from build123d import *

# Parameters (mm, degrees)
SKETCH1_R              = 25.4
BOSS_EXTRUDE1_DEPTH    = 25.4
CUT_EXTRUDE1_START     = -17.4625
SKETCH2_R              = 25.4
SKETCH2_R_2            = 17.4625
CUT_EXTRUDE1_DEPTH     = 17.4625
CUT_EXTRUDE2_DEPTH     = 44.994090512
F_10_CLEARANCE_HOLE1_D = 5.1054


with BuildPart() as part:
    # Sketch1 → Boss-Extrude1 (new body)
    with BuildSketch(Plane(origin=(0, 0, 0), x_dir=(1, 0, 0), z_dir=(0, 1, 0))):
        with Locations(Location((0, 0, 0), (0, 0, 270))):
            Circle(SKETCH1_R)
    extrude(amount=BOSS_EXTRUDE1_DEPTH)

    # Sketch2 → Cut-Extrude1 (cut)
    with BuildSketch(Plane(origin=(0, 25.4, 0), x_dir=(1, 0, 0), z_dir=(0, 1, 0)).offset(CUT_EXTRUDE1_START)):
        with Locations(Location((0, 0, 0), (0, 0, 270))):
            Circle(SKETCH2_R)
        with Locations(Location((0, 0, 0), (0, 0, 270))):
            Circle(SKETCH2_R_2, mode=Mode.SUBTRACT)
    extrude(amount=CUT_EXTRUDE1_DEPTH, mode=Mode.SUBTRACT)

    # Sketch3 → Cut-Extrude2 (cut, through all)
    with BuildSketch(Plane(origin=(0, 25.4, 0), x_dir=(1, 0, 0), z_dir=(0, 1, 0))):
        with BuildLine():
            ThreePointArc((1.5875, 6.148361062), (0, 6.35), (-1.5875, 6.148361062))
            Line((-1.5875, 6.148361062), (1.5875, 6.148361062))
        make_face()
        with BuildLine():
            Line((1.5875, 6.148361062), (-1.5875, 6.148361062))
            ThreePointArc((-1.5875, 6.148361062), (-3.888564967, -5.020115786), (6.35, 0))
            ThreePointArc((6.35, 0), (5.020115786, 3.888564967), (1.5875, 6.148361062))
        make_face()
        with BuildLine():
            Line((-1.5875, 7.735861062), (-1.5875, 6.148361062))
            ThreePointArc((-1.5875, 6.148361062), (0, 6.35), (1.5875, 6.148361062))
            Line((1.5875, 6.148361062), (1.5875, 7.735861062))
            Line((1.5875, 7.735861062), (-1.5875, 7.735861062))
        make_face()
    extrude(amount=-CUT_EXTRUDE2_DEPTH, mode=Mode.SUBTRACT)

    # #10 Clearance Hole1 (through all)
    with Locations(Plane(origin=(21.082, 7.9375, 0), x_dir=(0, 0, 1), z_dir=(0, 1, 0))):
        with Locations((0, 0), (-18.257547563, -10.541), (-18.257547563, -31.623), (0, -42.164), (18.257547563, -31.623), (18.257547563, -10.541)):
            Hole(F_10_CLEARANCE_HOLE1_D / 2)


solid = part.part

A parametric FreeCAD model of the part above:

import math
import FreeCAD as App
import Part
import Sketcher

V = App.Vector
Q = App.Units.Quantity

doc = App.newDocument("Part")
body = doc.addObject("PartDesign::Body", "Body")

# Sketch on XZ plane
sketch1 = body.newObject("Sketcher::SketchObject", "Sketch")
sketch1.AttachmentSupport = (doc.getObject("XZ_Plane"), [""])
sketch1.MapMode = "FlatFace"
sketch1.addGeometry(Part.Circle(V(0, 0, 0), V(0, 0, 1), 25), False)
sketch1.addConstraint([
    Sketcher.Constraint("Coincident", 0, 3, -1, 1),
    Sketcher.Constraint("Diameter", 0, Q("2 in")),
])
pad1 = body.newObject("PartDesign::Pad", "Pad")
pad1.Profile = sketch1
pad1.Length = Q("1 in")
pad1.Reversed = True

# Sketch on XZ plane
sketch2 = body.newObject("Sketcher::SketchObject", "Sketch001")
sketch2.AttachmentSupport = (doc.getObject("XZ_Plane"), [""])
sketch2.MapMode = "FlatFace"
sketch2.AttachmentOffset = App.Placement(V(0, 0, -0.3125 * 25.4), App.Rotation())
sketch2.addGeometry([
    Part.Circle(V(0, 0, 0), V(0, 0, 1), 25),
    Part.Circle(V(0, 0, 0), V(0, 0, 1), 17),
], False)
sketch2.addConstraint([
    Sketcher.Constraint("Coincident", 0, 3, -1, 1),
    Sketcher.Constraint("Coincident", 1, 3, -1, 1),
    Sketcher.Constraint("Diameter", 0, Q("2 in")),
    Sketcher.Constraint("Diameter", 1, Q("1.375 in")),
])
pocket1 = body.newObject("PartDesign::Pocket", "Pocket")
pocket1.Profile = sketch2
pocket1.Length = Q("0.6875 in")

# Sketch on XZ plane
sketch3 = body.newObject("Sketcher::SketchObject", "Sketch002")
sketch3.AttachmentSupport = (doc.getObject("XZ_Plane"), [""])
sketch3.MapMode = "FlatFace"
sketch3.AttachmentOffset = App.Placement(V(0, 0, -1 * 25.4), App.Rotation())
sketch3.addGeometry([
    Part.ArcOfCircle(Part.Circle(V(0, 0, 0), V(0, 0, 1), 6.3), math.radians(0), math.radians(256)),  # 0
    Part.ArcOfCircle(Part.Circle(V(0, 0, 0), V(0, 0, 1), 6.3), math.radians(-76), math.radians(0)),  # 1
    Part.LineSegment(V(1.6, -6.1, 0), V(1.6, -7.7, 0)),  # 2
    Part.LineSegment(V(1.6, -7.7, 0), V(-1.6, -7.7, 0)),  # 3
    Part.LineSegment(V(-1.6, -7.7, 0), V(-1.6, -6.1, 0)),  # 4
], False)
sketch3.addConstraint([
    Sketcher.Constraint("Tangent", 0, 1, 1, 2),
    Sketcher.Constraint("Coincident", 1, 1, 2, 1),
    Sketcher.Constraint("Coincident", 2, 2, 3, 1),
    Sketcher.Constraint("Coincident", 3, 2, 4, 1),
    Sketcher.Constraint("Coincident", 4, 2, 0, 2),
    Sketcher.Constraint("Vertical", 2),
    Sketcher.Constraint("Horizontal", 3),
    Sketcher.Constraint("Vertical", 4),
    Sketcher.Constraint("Coincident", 0, 3, -1, 1),
    Sketcher.Constraint("Equal", 0, 1),
    Sketcher.Constraint("PointOnObject", 0, 1, -1),
    Sketcher.Constraint("Horizontal", 1, 1, 4, 2),
    Sketcher.Constraint("Radius", 0, Q("0.25 in")),
    Sketcher.Constraint("DistanceX", 3, 2, 3, 1, Q("0.125 in")),
    Sketcher.Constraint("DistanceY", 2, 2, 2, 1, Q("0.0625 in")),
])
pocket2 = body.newObject("PartDesign::Pocket", "Pocket001")
pocket2.Profile = sketch3
pocket2.Type = "ThroughAll"
pocket2.Reversed = True

# Sketch on XZ plane
sketch4 = body.newObject("Sketcher::SketchObject", "Sketch003")
sketch4.AttachmentSupport = (doc.getObject("XZ_Plane"), [""])
sketch4.MapMode = "FlatFace"
sketch4.AttachmentOffset = App.Placement(V(0, 0, -0.3125 * 25.4), App.Rotation())
sketch4.addGeometry([
    Part.Circle(V(21.1, 0, 0), V(0, 0, 1), 2.6),  # 0
    Part.Circle(V(10.5, -18.3, 0), V(0, 0, 1), 2.6),  # 1
    Part.Circle(V(-10.5, -18.3, 0), V(0, 0, 1), 2.6),  # 2
    Part.Circle(V(-21.1, 0, 0), V(0, 0, 1), 2.6),  # 3
    Part.Circle(V(-10.5, 18.3, 0), V(0, 0, 1), 2.6),  # 4
    Part.Circle(V(10.5, 18.3, 0), V(0, 0, 1), 2.6),  # 5
], False)
sketch4.addConstraint([
    Sketcher.Constraint("Equal", 0, 1),
    Sketcher.Constraint("Equal", 1, 2),
    Sketcher.Constraint("Equal", 2, 3),
    Sketcher.Constraint("Equal", 3, 4),
    Sketcher.Constraint("Equal", 4, 5),
    Sketcher.Constraint("Symmetric", 0, 3, 3, 3, -1, 1),
    Sketcher.Constraint("Symmetric", 1, 3, 4, 3, -1, 1),
    Sketcher.Constraint("Symmetric", 2, 3, 5, 3, -1, 1),
    Sketcher.Constraint("Symmetric", 1, 3, 2, 3, -2),
    Sketcher.Constraint("PointOnObject", 0, 3, -1),
    Sketcher.Constraint("Diameter", 0, Q("0.201 in")),
    Sketcher.Constraint("DistanceX", -1, 1, 0, 3, Q("0.83 in")),
    Sketcher.Constraint("DistanceX", 2, 3, 1, 3, Q("0.83 in")),
    Sketcher.Constraint("DistanceY", 1, 3, -1, 1, 18.257548),
])
doc.recompute()
hole = body.newObject("PartDesign::Hole", "Hole")
hole.Profile = sketch4
hole.ThreadType = "None"
hole.Diameter = Q("0.201 in")
hole.DepthType = "ThroughAll"
hole.Reversed = True

doc.recompute()
